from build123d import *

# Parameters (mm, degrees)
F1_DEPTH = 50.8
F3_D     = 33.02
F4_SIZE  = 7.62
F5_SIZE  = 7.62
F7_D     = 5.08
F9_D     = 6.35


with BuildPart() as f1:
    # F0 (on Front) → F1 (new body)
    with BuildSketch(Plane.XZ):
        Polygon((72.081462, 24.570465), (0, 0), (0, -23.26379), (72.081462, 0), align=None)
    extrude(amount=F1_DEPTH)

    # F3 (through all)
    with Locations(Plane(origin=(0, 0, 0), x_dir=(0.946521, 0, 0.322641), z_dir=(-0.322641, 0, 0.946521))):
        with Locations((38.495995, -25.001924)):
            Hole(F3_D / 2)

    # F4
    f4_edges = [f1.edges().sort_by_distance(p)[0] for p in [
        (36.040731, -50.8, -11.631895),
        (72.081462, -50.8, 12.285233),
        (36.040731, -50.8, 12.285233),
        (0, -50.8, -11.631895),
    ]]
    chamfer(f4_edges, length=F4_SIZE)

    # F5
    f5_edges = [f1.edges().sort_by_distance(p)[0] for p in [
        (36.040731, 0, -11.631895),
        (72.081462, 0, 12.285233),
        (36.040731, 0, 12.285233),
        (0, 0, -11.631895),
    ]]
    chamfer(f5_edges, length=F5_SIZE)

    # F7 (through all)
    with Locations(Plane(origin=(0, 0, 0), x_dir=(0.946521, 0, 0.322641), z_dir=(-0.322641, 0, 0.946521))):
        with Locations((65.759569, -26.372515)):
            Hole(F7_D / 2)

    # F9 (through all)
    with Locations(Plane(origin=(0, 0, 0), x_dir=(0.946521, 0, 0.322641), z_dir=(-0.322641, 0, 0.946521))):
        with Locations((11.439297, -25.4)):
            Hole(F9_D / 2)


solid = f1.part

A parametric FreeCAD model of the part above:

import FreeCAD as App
import Part
import Sketcher
Q = App.Units.Quantity


def edges_at(feature, points):
    """Names of the edges that pass closest to the given points."""
    edges = feature.Shape.Edges
    near = lambda p: min(range(len(edges)), key=lambda i: edges[i].distToShape(Part.Vertex(*p))[0])
    return sorted({f"Edge{near(p) + 1}" for p in points})


def add_polygon(sketch, points):
    """Adds a closed chain of lines whose ends are joined by coincident constraints."""
    first, n = sketch.GeometryCount, len(points)
    for a, b in zip(points, points[1:] + points[:1]):
        sketch.addGeometry(Part.LineSegment(App.Vector(*a, 0), App.Vector(*b, 0)), False)
    for i in range(n):
        sketch.addConstraint(Sketcher.Constraint("Coincident", first + i, 2, first + (i + 1) % n, 1))

doc = App.newDocument("Part")
params = doc.addObject("Spreadsheet::Sheet", "Params")
for row, (alias, value) in enumerate([
    ("pad1_length", "2 in"),
    ("sketch2_diameter", "1.3 in"),
    ("hole_diameter", "1.3 in"),
    ("chamfer_size", "0.3 in"),
    ("chamfer2_size", "0.3 in"),
    ("sketch3_diameter", "0.2 in"),
    ("hole2_diameter", "0.2 in"),
    ("sketch4_diameter", "0.25 in"),
    ("hole3_diameter", "0.25 in"),
], start=1):
    params.set(f"A{row}", alias)
    params.set(f"B{row}", "=" + value)
    params.setAlias(f"B{row}", alias)

body = doc.addObject("PartDesign::Body", "Body")

sketch1 = body.newObject("Sketcher::SketchObject", "Sketch")
sketch1.AttachmentSupport = (doc.getObject("XZ_Plane"), [""])
sketch1.MapMode = "FlatFace"
add_polygon(sketch1, [(72, 25), (0, 0), (0, -23), (72, 0)])
sketch1.addConstraint(Sketcher.Constraint("Vertical", 1))
sketch1.addConstraint(Sketcher.Constraint("Vertical", 3))
sketch1.addConstraint(Sketcher.Constraint("Coincident", 0, 2, -1, 1))
sketch1.addConstraint(Sketcher.Constraint("PointOnObject", 2, 2, -1))
sketch1.addConstraint(Sketcher.Constraint("DistanceY", 1, 2, 1, 1, Q("23.26379 mm")))
sketch1.addConstraint(Sketcher.Constraint("DistanceY", 3, 1, 3, 2, Q("24.570465 mm")))
sketch1.addConstraint(Sketcher.Constraint("DistanceX", -1, 1, 2, 2, Q("72.081462 mm")))
pad1 = body.newObject("PartDesign::Pad", "Pad")
pad1.Profile = sketch1
pad1.setExpression("Length", "Params.pad1_length")

sketch2 = body.newObject("Sketcher::SketchObject", "Sketch001")
sketch2.Placement = App.Placement(App.Vector(0, 0, 0), App.Rotation(App.Vector(0.94652137, 0, 0.322641126), App.Vector(0, 1, 0), App.Vector(-0.322641126, 0, 0.94652137), "ZXY"))
sketch2.addGeometry(Part.Circle(App.Vector(38, -25, 0), App.Vector(0, 0, 1), 17), False)
sketch2.addConstraint(Sketcher.Constraint("Diameter", 0, Q("1.3 in")))
sketch2.addConstraint(Sketcher.Constraint("DistanceX", -1, 1, 0, 3, Q("38.495995 mm")))
sketch2.addConstraint(Sketcher.Constraint("DistanceY", 0, 3, -1, 1, Q("25.001924 mm")))
sketch2.setExpression("Constraints[0]", "Params.sketch2_diameter")
doc.recompute()
hole = body.newObject("PartDesign::Hole", "Hole")
hole.Profile = sketch2
hole.ThreadType = "None"
hole.setExpression("Diameter", "Params.hole_diameter")
hole.DepthType = "ThroughAll"
doc.recompute()

chamfer = body.newObject("PartDesign::Chamfer", "Chamfer")
chamfer.Base = (hole, edges_at(hole, [
    (36.041, -50.8, -11.632),
    (72.081, -50.8, 12.285),
    (36.041, -50.8, 12.285),
    (0, -50.8, -11.632),
]))
chamfer.setExpression("Size", "Params.chamfer_size")
doc.recompute()

chamfer2 = body.newObject("PartDesign::Chamfer", "Chamfer001")
chamfer2.Base = (chamfer, edges_at(chamfer, [
    (36.041, 0, -11.632),
    (72.081, 0, 12.285),
    (36.041, 0, 12.285),
    (0, 0, -11.632),
]))
chamfer2.setExpression("Size", "Params.chamfer2_size")

sketch3 = body.newObject("Sketcher::SketchObject", "Sketch002")
sketch3.Placement = App.Placement(App.Vector(0, 0, 0), App.Rotation(App.Vector(0.94652137, 0, 0.322641126), App.Vector(0, 1, 0), App.Vector(-0.322641126, 0, 0.94652137), "ZXY"))
sketch3.addGeometry(Part.Circle(App.Vector(65.8, -26.4, 0), App.Vector(0, 0, 1), 2.5), False)
sketch3.addConstraint(Sketcher.Constraint("Diameter", 0, Q("0.2 in")))
sketch3.addConstraint(Sketcher.Constraint("DistanceX", -1, 1, 0, 3, Q("65.759569 mm")))
sketch3.addConstraint(Sketcher.Constraint("DistanceY", 0, 3, -1, 1, Q("26.372515 mm")))
sketch3.setExpression("Constraints[0]", "Params.sketch3_diameter")
doc.recompute()
hole2 = body.newObject("PartDesign::Hole", "Hole001")
hole2.Profile = sketch3
hole2.ThreadType = "None"
hole2.setExpression("Diameter", "Params.hole2_diameter")
hole2.DepthType = "ThroughAll"

sketch4 = body.newObject("Sketcher::SketchObject", "Sketch003")
sketch4.Placement = App.Placement(App.Vector(0, 0, 0), App.Rotation(App.Vector(0.94652137, 0, 0.322641126), App.Vector(0, 1, 0), App.Vector(-0.322641126, 0, 0.94652137), "ZXY"))
sketch4.addGeometry(Part.Circle(App.Vector(11.4, -25.4, 0), App.Vector(0, 0, 1), 3.2), False)
sketch4.addConstraint(Sketcher.Constraint("Diameter", 0, Q("0.25 in")))
sketch4.addConstraint(Sketcher.Constraint("DistanceY", 0, 3, -1, 1, Q("1 in")))
sketch4.addConstraint(Sketcher.Constraint("DistanceX", -1, 1, 0, 3, Q("11.439297 mm")))
sketch4.setExpression("Constraints[0]", "Params.sketch4_diameter")
doc.recompute()
hole3 = body.newObject("PartDesign::Hole", "Hole002")
hole3.Profile = sketch4
hole3.ThreadType = "None"
hole3.setExpression("Diameter", "Params.hole3_diameter")
hole3.DepthType = "ThroughAll"

doc.recompute()
